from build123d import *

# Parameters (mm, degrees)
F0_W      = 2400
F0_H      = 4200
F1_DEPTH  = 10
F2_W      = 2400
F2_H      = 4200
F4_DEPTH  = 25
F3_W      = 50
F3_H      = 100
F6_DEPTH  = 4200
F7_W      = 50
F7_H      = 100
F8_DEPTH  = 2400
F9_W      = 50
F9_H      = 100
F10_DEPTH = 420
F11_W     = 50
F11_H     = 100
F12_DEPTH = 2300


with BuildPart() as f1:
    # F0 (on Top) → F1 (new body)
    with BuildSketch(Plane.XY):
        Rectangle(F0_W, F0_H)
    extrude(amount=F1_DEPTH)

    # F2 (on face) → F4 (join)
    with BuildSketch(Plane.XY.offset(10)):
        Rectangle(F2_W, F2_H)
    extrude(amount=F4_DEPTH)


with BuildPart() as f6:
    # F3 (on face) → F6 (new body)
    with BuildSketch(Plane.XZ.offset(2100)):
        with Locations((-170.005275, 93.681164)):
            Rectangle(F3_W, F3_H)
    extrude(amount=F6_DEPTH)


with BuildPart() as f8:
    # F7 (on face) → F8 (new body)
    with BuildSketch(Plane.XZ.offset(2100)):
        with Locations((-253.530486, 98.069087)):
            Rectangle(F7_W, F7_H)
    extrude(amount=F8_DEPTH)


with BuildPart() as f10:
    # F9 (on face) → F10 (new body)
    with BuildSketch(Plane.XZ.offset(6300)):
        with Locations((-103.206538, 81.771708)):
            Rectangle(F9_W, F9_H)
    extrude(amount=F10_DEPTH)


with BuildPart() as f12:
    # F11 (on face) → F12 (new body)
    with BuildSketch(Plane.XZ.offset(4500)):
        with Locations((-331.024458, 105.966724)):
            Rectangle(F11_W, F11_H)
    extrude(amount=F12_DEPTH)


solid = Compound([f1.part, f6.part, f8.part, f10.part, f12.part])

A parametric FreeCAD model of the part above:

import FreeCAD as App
import Part
import Sketcher
Q = App.Units.Quantity

doc = App.newDocument("Part")
params = doc.addObject("Spreadsheet::Sheet", "Params")
for row, (alias, value) in enumerate([
    ("sketch1_width", "2400 mm"),
    ("sketch1_height", "4200 mm"),
    ("pad1_length", "10 mm"),
    ("sketch2_width", "2400 mm"),
    ("sketch2_height", "4200 mm"),
    ("pad2_length", "25 mm"),
    ("sketch3_width", "50 mm"),
    ("sketch3_height", "100 mm"),
    ("pad3_length", "4200 mm"),
    ("sketch4_width", "50 mm"),
    ("sketch4_height", "100 mm"),
    ("pad4_length", "2400 mm"),
    ("sketch5_width", "50 mm"),
    ("sketch5_height", "100 mm"),
    ("pad5_length", "420 mm"),
    ("sketch6_width", "50 mm"),
    ("sketch6_height", "100 mm"),
    ("pad6_length", "2300 mm"),
], start=1):
    params.set(f"A{row}", alias)
    params.set(f"B{row}", "=" + value)
    params.setAlias(f"B{row}", alias)

body = doc.addObject("PartDesign::Body", "Body")

sketch1 = body.newObject("Sketcher::SketchObject", "Sketch")
sketch1.AttachmentSupport = (doc.getObject("XY_Plane"), [""])
sketch1.MapMode = "FlatFace"
sketch1.addGeometry([
    Part.LineSegment(App.Vector(-1200, 2100, 0), App.Vector(-1200, -2100, 0)),
    Part.LineSegment(App.Vector(-1200, -2100, 0), App.Vector(1200, -2100, 0)),
    Part.LineSegment(App.Vector(1200, -2100, 0), App.Vector(1200, 2100, 0)),
    Part.LineSegment(App.Vector(1200, 2100, 0), App.Vector(-1200, 2100, 0)),
], False)
sketch1.addConstraint([
    Sketcher.Constraint("Coincident", 0, 2, 1, 1),
    Sketcher.Constraint("Coincident", 1, 2, 2, 1),
    Sketcher.Constraint("Coincident", 2, 2, 3, 1),
    Sketcher.Constraint("Coincident", 3, 2, 0, 1),
    Sketcher.Constraint("Vertical", 0),
    Sketcher.Constraint("Horizontal", 1),
    Sketcher.Constraint("Vertical", 2),
    Sketcher.Constraint("Horizontal", 3),
    Sketcher.Constraint("Symmetric", 0, 2, 2, 2, -1, 1),
    Sketcher.Constraint("DistanceX", 1, 1, 1, 2, Q("2400 mm")),
    Sketcher.Constraint("DistanceY", 0, 2, 0, 1, Q("4200 mm")),
])
sketch1.setExpression("Constraints[9]", "Params.sketch1_width")
sketch1.setExpression("Constraints[10]", "Params.sketch1_height")
pad1 = body.newObject("PartDesign::Pad", "Pad")
pad1.Profile = sketch1
pad1.setExpression("Length", "Params.pad1_length")

sketch2 = body.newObject("Sketcher::SketchObject", "Sketch001")
sketch2.AttachmentSupport = (doc.getObject("XY_Plane"), [""])
sketch2.MapMode = "FlatFace"
sketch2.AttachmentOffset = App.Placement(App.Vector(0, 0, 10), App.Rotation())
sketch2.addGeometry([
    Part.LineSegment(App.Vector(-1200, 2100, 0), App.Vector(-1200, -2100, 0)),
    Part.LineSegment(App.Vector(-1200, -2100, 0), App.Vector(1200, -2100, 0)),
    Part.LineSegment(App.Vector(1200, -2100, 0), App.Vector(1200, 2100, 0)),
    Part.LineSegment(App.Vector(1200, 2100, 0), App.Vector(-1200, 2100, 0)),
], False)
sketch2.addConstraint([
    Sketcher.Constraint("Coincident", 0, 2, 1, 1),
    Sketcher.Constraint("Coincident", 1, 2, 2, 1),
    Sketcher.Constraint("Coincident", 2, 2, 3, 1),
    Sketcher.Constraint("Coincident", 3, 2, 0, 1),
    Sketcher.Constraint("Vertical", 0),
    Sketcher.Constraint("Horizontal", 1),
    Sketcher.Constraint("Vertical", 2),
    Sketcher.Constraint("Horizontal", 3),
    Sketcher.Constraint("Symmetric", 0, 2, 2, 2, -1, 1),
    Sketcher.Constraint("DistanceX", 1, 1, 1, 2, Q("2400 mm")),
    Sketcher.Constraint("DistanceY", 0, 2, 0, 1, Q("4200 mm")),
])
sketch2.setExpression("Constraints[9]", "Params.sketch2_width")
sketch2.setExpression("Constraints[10]", "Params.sketch2_height")
pad2 = body.newObject("PartDesign::Pad", "Pad001")
pad2.Profile = sketch2
pad2.setExpression("Length", "Params.pad2_length")
body2 = doc.addObject("PartDesign::Body", "Body001")

sketch3 = body2.newObject("Sketcher::SketchObject", "Sketch002")
sketch3.AttachmentSupport = (doc.getObject("XZ_Plane001"), [""])
sketch3.MapMode = "FlatFace"
sketch3.AttachmentOffset = App.Placement(App.Vector(0, 0, 2100), App.Rotation())
sketch3.addGeometry([
    Part.LineSegment(App.Vector(-195, 144, 0), App.Vector(-195, 44, 0)),
    Part.LineSegment(App.Vector(-195, 44, 0), App.Vector(-145, 44, 0)),
    Part.LineSegment(App.Vector(-145, 44, 0), App.Vector(-145, 144, 0)),
    Part.LineSegment(App.Vector(-145, 144, 0), App.Vector(-195, 144, 0)),
], False)
sketch3.addConstraint([
    Sketcher.Constraint("Coincident", 0, 2, 1, 1),
    Sketcher.Constraint("Coincident", 1, 2, 2, 1),
    Sketcher.Constraint("Coincident", 2, 2, 3, 1),
    Sketcher.Constraint("Coincident", 3, 2, 0, 1),
    Sketcher.Constraint("Vertical", 0),
    Sketcher.Constraint("Horizontal", 1),
    Sketcher.Constraint("Vertical", 2),
    Sketcher.Constraint("Horizontal", 3),
    Sketcher.Constraint("DistanceX", 1, 1, 1, 2, Q("50 mm")),
    Sketcher.Constraint("DistanceY", 0, 2, 0, 1, Q("100 mm")),
    Sketcher.Constraint("DistanceX", 0, 2, -1, 1, Q("195.005275 mm")),
    Sketcher.Constraint("DistanceY", -1, 1, 0, 2, Q("43.681164 mm")),
])
sketch3.setExpression("Constraints[8]", "Params.sketch3_width")
sketch3.setExpression("Constraints[9]", "Params.sketch3_height")
pad3 = body2.newObject("PartDesign::Pad", "Pad002")
pad3.Profile = sketch3
pad3.setExpression("Length", "Params.pad3_length")
body3 = doc.addObject("PartDesign::Body", "Body002")

sketch4 = body3.newObject("Sketcher::SketchObject", "Sketch003")
sketch4.AttachmentSupport = (doc.getObject("XZ_Plane002"), [""])
sketch4.MapMode = "FlatFace"
sketch4.AttachmentOffset = App.Placement(App.Vector(0, 0, 2100), App.Rotation())
sketch4.addGeometry([
    Part.LineSegment(App.Vector(-279, 148, 0), App.Vector(-279, 48, 0)),
    Part.LineSegment(App.Vector(-279, 48, 0), App.Vector(-229, 48, 0)),
    Part.LineSegment(App.Vector(-229, 48, 0), App.Vector(-229, 148, 0)),
    Part.LineSegment(App.Vector(-229, 148, 0), App.Vector(-279, 148, 0)),
], False)
sketch4.addConstraint([
    Sketcher.Constraint("Coincident", 0, 2, 1, 1),
    Sketcher.Constraint("Coincident", 1, 2, 2, 1),
    Sketcher.Constraint("Coincident", 2, 2, 3, 1),
    Sketcher.Constraint("Coincident", 3, 2, 0, 1),
    Sketcher.Constraint("Vertical", 0),
    Sketcher.Constraint("Horizontal", 1),
    Sketcher.Constraint("Vertical", 2),
    Sketcher.Constraint("Horizontal", 3),
    Sketcher.Constraint("DistanceX", 1, 1, 1, 2, Q("50 mm")),
    Sketcher.Constraint("DistanceY", 0, 2, 0, 1, Q("100 mm")),
    Sketcher.Constraint("DistanceX", 0, 2, -1, 1, Q("278.530486 mm")),
    Sketcher.Constraint("DistanceY", -1, 1, 0, 2, Q("48.069087 mm")),
])
sketch4.setExpression("Constraints[8]", "Params.sketch4_width")
sketch4.setExpression("Constraints[9]", "Params.sketch4_height")
pad4 = body3.newObject("PartDesign::Pad", "Pad003")
pad4.Profile = sketch4
pad4.setExpression("Length", "Params.pad4_length")
body4 = doc.addObject("PartDesign::Body", "Body003")

sketch5 = body4.newObject("Sketcher::SketchObject", "Sketch004")
sketch5.AttachmentSupport = (doc.getObject("XZ_Plane003"), [""])
sketch5.MapMode = "FlatFace"
sketch5.AttachmentOffset = App.Placement(App.Vector(0, 0, 6300), App.Rotation())
sketch5.addGeometry([
    Part.LineSegment(App.Vector(-128, 132, 0), App.Vector(-128, 32, 0)),
    Part.LineSegment(App.Vector(-128, 32, 0), App.Vector(-78, 32, 0)),
    Part.LineSegment(App.Vector(-78, 32, 0), App.Vector(-78, 132, 0)),
    Part.LineSegment(App.Vector(-78, 132, 0), App.Vector(-128, 132, 0)),
], False)
sketch5.addConstraint([
    Sketcher.Constraint("Coincident", 0, 2, 1, 1),
    Sketcher.Constraint("Coincident", 1, 2, 2, 1),
    Sketcher.Constraint("Coincident", 2, 2, 3, 1),
    Sketcher.Constraint("Coincident", 3, 2, 0, 1),
    Sketcher.Constraint("Vertical", 0),
    Sketcher.Constraint("Horizontal", 1),
    Sketcher.Constraint("Vertical", 2),
    Sketcher.Constraint("Horizontal", 3),
    Sketcher.Constraint("DistanceX", 1, 1, 1, 2, Q("50 mm")),
    Sketcher.Constraint("DistanceY", 0, 2, 0, 1, Q("100 mm")),
    Sketcher.Constraint("DistanceX", 0, 2, -1, 1, Q("128.206538 mm")),
    Sketcher.Constraint("DistanceY", -1, 1, 0, 2, Q("31.771708 mm")),
])
sketch5.setExpression("Constraints[8]", "Params.sketch5_width")
sketch5.setExpression("Constraints[9]", "Params.sketch5_height")
pad5 = body4.newObject("PartDesign::Pad", "Pad004")
pad5.Profile = sketch5
pad5.setExpression("Length", "Params.pad5_length")
body5 = doc.addObject("PartDesign::Body", "Body004")

sketch6 = body5.newObject("Sketcher::SketchObject", "Sketch005")
sketch6.AttachmentSupport = (doc.getObject("XZ_Plane004"), [""])
sketch6.MapMode = "FlatFace"
sketch6.AttachmentOffset = App.Placement(App.Vector(0, 0, 4500), App.Rotation())
sketch6.addGeometry([
    Part.LineSegment(App.Vector(-356, 156, 0), App.Vector(-356, 56, 0)),
    Part.LineSegment(App.Vector(-356, 56, 0), App.Vector(-306, 56, 0)),
    Part.LineSegment(App.Vector(-306, 56, 0), App.Vector(-306, 156, 0)),
    Part.LineSegment(App.Vector(-306, 156, 0), App.Vector(-356, 156, 0)),
], False)
sketch6.addConstraint([
    Sketcher.Constraint("Coincident", 0, 2, 1, 1),
    Sketcher.Constraint("Coincident", 1, 2, 2, 1),
    Sketcher.Constraint("Coincident", 2, 2, 3, 1),
    Sketcher.Constraint("Coincident", 3, 2, 0, 1),
    Sketcher.Constraint("Vertical", 0),
    Sketcher.Constraint("Horizontal", 1),
    Sketcher.Constraint("Vertical", 2),
    Sketcher.Constraint("Horizontal", 3),
    Sketcher.Constraint("DistanceX", 1, 1, 1, 2, Q("50 mm")),
    Sketcher.Constraint("DistanceY", 0, 2, 0, 1, Q("100 mm")),
    Sketcher.Constraint("DistanceX", 0, 2, -1, 1, Q("356.024458 mm")),
    Sketcher.Constraint("DistanceY", -1, 1, 0, 2, Q("55.966724 mm")),
])
sketch6.setExpression("Constraints[8]", "Params.sketch6_width")
sketch6.setExpression("Constraints[9]", "Params.sketch6_height")
pad6 = body5.newObject("PartDesign::Pad", "Pad005")
pad6.Profile = sketch6
pad6.setExpression("Length", "Params.pad6_length")

doc.recompute()
